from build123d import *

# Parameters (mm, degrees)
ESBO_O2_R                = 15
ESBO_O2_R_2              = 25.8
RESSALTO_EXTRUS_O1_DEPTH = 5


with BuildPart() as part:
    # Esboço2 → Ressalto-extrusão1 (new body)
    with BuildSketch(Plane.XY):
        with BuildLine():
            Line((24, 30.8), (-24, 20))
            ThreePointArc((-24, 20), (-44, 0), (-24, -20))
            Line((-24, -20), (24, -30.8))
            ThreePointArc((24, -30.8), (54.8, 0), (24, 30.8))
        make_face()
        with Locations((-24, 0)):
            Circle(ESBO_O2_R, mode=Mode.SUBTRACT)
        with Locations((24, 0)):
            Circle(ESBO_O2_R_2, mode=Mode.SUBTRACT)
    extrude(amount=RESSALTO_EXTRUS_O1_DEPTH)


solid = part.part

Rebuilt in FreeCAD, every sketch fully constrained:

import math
import FreeCAD as App
import Part
import Sketcher
from FreeCAD import Vector

doc = App.newDocument("Part")
body = doc.addObject("PartDesign::Body", "Body")

sketch1 = body.newObject("Sketcher::SketchObject", "Sketch")
sketch1.AttachmentSupport = (doc.getObject("XY_Plane"), [""])
sketch1.MapMode = "FlatFace"
sketch1.addGeometry([
    Part.LineSegment(Vector(24, 31, 0), Vector(-24, 20, 0)),
    Part.ArcOfCircle(Part.Circle(Vector(-24, 0, 0), Vector(0, 0, 1), 20), math.radians(90), math.radians(270)),
    Part.LineSegment(Vector(-24, -20, 0), Vector(24, -31, 0)),
    Part.ArcOfCircle(Part.Circle(Vector(24, 0, 0), Vector(0, 0, 1), 31), math.radians(-90), math.radians(90)),
    Part.Circle(Vector(-24, 0, 0), Vector(0, 0, 1), 15),
    Part.Circle(Vector(24, 0, 0), Vector(0, 0, 1), 26),
], False)
sketch1.addConstraint([
    Sketcher.Constraint("Coincident", 0, 2, 1, 1),
    Sketcher.Constraint("Coincident", 1, 2, 2, 1),
    Sketcher.Constraint("Coincident", 2, 2, 3, 1),
    Sketcher.Constraint("Coincident", 3, 2, 0, 1),
    Sketcher.Constraint("Coincident", 4, 3, 1, 3),
    Sketcher.Constraint("Coincident", 5, 3, 3, 3),
    Sketcher.Constraint("Symmetric", 1, 3, 3, 3, -1, 1),
    Sketcher.Constraint("Symmetric", 0, 2, 1, 2, -1),
    Sketcher.Constraint("Vertical", 4, 3, 0, 2),
    Sketcher.Constraint("Vertical", 5, 3, 2, 2),
    Sketcher.Constraint("Vertical", 2, 2, 3, 2),
    Sketcher.Constraint("Diameter", 4, 30.0),
    Sketcher.Constraint("Radius", 1, 20.0),
    Sketcher.Constraint("Diameter", 5, 51.6),
    Sketcher.Constraint("Radius", 3, 30.8),
    Sketcher.Constraint("DistanceX", 1, 3, -1, 1, 24.0),
])
pad1 = body.newObject("PartDesign::Pad", "Pad")
pad1.Profile = sketch1
pad1.Length = 5

doc.recompute()
